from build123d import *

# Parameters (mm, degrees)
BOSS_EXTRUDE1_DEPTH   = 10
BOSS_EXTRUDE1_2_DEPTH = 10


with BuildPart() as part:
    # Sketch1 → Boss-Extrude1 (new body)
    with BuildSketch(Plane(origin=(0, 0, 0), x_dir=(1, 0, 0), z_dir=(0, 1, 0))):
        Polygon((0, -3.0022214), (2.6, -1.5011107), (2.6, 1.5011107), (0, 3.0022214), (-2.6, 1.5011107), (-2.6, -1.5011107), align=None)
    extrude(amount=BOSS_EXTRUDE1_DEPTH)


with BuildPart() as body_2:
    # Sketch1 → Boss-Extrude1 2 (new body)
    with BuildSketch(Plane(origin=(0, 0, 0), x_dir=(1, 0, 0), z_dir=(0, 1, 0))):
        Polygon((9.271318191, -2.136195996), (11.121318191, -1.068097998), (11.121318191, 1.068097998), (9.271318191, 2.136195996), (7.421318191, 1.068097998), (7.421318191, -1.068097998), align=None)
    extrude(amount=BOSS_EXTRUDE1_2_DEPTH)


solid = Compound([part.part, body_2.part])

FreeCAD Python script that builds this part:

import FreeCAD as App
import Part
import Sketcher
from FreeCAD import Vector
Q = App.Units.Quantity

doc = App.newDocument("Part")
body = doc.addObject("PartDesign::Body", "Body")

# Sketch on XZ plane
sketch1 = body.newObject("Sketcher::SketchObject", "Sketch")
sketch1.AttachmentSupport = (doc.getObject("XZ_Plane"), [""])
sketch1.MapMode = "FlatFace"
sketch1.addGeometry(Part.LineSegment(Vector(0, 3, 0), Vector(2.6, 1.5, 0)), False)
sketch1.addGeometry(Part.LineSegment(Vector(2.6, 1.5, 0), Vector(2.6, -1.5, 0)), False)
sketch1.addGeometry(Part.LineSegment(Vector(2.6, -1.5, 0), Vector(0, -3, 0)), False)
sketch1.addGeometry(Part.LineSegment(Vector(0, -3, 0), Vector(-2.6, -1.5, 0)), False)
sketch1.addGeometry(Part.LineSegment(Vector(-2.6, -1.5, 0), Vector(-2.6, 1.5, 0)), False)
sketch1.addGeometry(Part.LineSegment(Vector(-2.6, 1.5, 0), Vector(0, 3, 0)), False)
sketch1.addConstraint(Sketcher.Constraint("Coincident", 0, 2, 1, 1))
sketch1.addConstraint(Sketcher.Constraint("Coincident", 1, 2, 2, 1))
sketch1.addConstraint(Sketcher.Constraint("Coincident", 2, 2, 3, 1))
sketch1.addConstraint(Sketcher.Constraint("Coincident", 3, 2, 4, 1))
sketch1.addConstraint(Sketcher.Constraint("Coincident", 4, 2, 5, 1))
sketch1.addConstraint(Sketcher.Constraint("Coincident", 5, 2, 0, 1))
sketch1.addConstraint(Sketcher.Constraint("Vertical", 1))
sketch1.addConstraint(Sketcher.Constraint("Vertical", 4))
sketch1.addConstraint(Sketcher.Constraint("Symmetric", 0, 2, 3, 2, -1, 1))
sketch1.addConstraint(Sketcher.Constraint("Symmetric", 2, 2, 5, 2, -1, 1))
sketch1.addConstraint(Sketcher.Constraint("PointOnObject", 2, 2, -2))
sketch1.addConstraint(Sketcher.Constraint("Parallel", 2, 5))
sketch1.addConstraint(Sketcher.Constraint("Horizontal", 1, 2, 3, 2))
sketch1.addConstraint(Sketcher.Constraint("Angle", 0, Q("-30 deg")))
sketch1.addConstraint(Sketcher.Constraint("DistanceX", -1, 1, 0, 2, Q("2.6 mm")))
sketch1.addConstraint(Sketcher.Constraint("DistanceY", 1, 2, 1, 1, Q("3.002221 mm")))
pad1 = body.newObject("PartDesign::Pad", "Pad")
pad1.Profile = sketch1
pad1.Length = 10
pad1.Reversed = True
body2 = doc.addObject("PartDesign::Body", "Body001")

# Sketch on XZ plane
sketch2 = body2.newObject("Sketcher::SketchObject", "Sketch001")
sketch2.AttachmentSupport = (doc.getObject("XZ_Plane001"), [""])
sketch2.MapMode = "FlatFace"
sketch2.addGeometry(Part.LineSegment(Vector(9.3, 2.1, 0), Vector(11.1, 1.1, 0)), False)
sketch2.addGeometry(Part.LineSegment(Vector(11.1, 1.1, 0), Vector(11.1, -1.1, 0)), False)
sketch2.addGeometry(Part.LineSegment(Vector(11.1, -1.1, 0), Vector(9.3, -2.1, 0)), False)
sketch2.addGeometry(Part.LineSegment(Vector(9.3, -2.1, 0), Vector(7.4, -1.1, 0)), False)
sketch2.addGeometry(Part.LineSegment(Vector(7.4, -1.1, 0), Vector(7.4, 1.1, 0)), False)
sketch2.addGeometry(Part.LineSegment(Vector(7.4, 1.1, 0), Vector(9.3, 2.1, 0)), False)
sketch2.addConstraint(Sketcher.Constraint("Coincident", 0, 2, 1, 1))
sketch2.addConstraint(Sketcher.Constraint("Coincident", 1, 2, 2, 1))
sketch2.addConstraint(Sketcher.Constraint("Coincident", 2, 2, 3, 1))
sketch2.addConstraint(Sketcher.Constraint("Coincident", 3, 2, 4, 1))
sketch2.addConstraint(Sketcher.Constraint("Coincident", 4, 2, 5, 1))
sketch2.addConstraint(Sketcher.Constraint("Coincident", 5, 2, 0, 1))
sketch2.addConstraint(Sketcher.Constraint("Vertical", 1))
sketch2.addConstraint(Sketcher.Constraint("Vertical", 4))
sketch2.addConstraint(Sketcher.Constraint("Symmetric", 2, 2, 5, 2, -1))
sketch2.addConstraint(Sketcher.Constraint("Parallel", 0, 3))
sketch2.addConstraint(Sketcher.Constraint("Parallel", 2, 5))
sketch2.addConstraint(Sketcher.Constraint("Horizontal", 1, 2, 3, 2))
sketch2.addConstraint(Sketcher.Constraint("Horizontal", 0, 2, 4, 2))
sketch2.addConstraint(Sketcher.Constraint("Angle", 0, Q("-30 deg")))
sketch2.addConstraint(Sketcher.Constraint("DistanceX", 3, 2, 1, 2, Q("3.7 mm")))
sketch2.addConstraint(Sketcher.Constraint("DistanceY", 1, 2, 1, 1, Q("2.136196 mm")))
sketch2.addConstraint(Sketcher.Constraint("DistanceX", -1, 1, 0, 2, Q("11.121318 mm")))
pad2 = body2.newObject("PartDesign::Pad", "Pad001")
pad2.Profile = sketch2
pad2.Length = 10
pad2.Reversed = True

doc.recompute()
